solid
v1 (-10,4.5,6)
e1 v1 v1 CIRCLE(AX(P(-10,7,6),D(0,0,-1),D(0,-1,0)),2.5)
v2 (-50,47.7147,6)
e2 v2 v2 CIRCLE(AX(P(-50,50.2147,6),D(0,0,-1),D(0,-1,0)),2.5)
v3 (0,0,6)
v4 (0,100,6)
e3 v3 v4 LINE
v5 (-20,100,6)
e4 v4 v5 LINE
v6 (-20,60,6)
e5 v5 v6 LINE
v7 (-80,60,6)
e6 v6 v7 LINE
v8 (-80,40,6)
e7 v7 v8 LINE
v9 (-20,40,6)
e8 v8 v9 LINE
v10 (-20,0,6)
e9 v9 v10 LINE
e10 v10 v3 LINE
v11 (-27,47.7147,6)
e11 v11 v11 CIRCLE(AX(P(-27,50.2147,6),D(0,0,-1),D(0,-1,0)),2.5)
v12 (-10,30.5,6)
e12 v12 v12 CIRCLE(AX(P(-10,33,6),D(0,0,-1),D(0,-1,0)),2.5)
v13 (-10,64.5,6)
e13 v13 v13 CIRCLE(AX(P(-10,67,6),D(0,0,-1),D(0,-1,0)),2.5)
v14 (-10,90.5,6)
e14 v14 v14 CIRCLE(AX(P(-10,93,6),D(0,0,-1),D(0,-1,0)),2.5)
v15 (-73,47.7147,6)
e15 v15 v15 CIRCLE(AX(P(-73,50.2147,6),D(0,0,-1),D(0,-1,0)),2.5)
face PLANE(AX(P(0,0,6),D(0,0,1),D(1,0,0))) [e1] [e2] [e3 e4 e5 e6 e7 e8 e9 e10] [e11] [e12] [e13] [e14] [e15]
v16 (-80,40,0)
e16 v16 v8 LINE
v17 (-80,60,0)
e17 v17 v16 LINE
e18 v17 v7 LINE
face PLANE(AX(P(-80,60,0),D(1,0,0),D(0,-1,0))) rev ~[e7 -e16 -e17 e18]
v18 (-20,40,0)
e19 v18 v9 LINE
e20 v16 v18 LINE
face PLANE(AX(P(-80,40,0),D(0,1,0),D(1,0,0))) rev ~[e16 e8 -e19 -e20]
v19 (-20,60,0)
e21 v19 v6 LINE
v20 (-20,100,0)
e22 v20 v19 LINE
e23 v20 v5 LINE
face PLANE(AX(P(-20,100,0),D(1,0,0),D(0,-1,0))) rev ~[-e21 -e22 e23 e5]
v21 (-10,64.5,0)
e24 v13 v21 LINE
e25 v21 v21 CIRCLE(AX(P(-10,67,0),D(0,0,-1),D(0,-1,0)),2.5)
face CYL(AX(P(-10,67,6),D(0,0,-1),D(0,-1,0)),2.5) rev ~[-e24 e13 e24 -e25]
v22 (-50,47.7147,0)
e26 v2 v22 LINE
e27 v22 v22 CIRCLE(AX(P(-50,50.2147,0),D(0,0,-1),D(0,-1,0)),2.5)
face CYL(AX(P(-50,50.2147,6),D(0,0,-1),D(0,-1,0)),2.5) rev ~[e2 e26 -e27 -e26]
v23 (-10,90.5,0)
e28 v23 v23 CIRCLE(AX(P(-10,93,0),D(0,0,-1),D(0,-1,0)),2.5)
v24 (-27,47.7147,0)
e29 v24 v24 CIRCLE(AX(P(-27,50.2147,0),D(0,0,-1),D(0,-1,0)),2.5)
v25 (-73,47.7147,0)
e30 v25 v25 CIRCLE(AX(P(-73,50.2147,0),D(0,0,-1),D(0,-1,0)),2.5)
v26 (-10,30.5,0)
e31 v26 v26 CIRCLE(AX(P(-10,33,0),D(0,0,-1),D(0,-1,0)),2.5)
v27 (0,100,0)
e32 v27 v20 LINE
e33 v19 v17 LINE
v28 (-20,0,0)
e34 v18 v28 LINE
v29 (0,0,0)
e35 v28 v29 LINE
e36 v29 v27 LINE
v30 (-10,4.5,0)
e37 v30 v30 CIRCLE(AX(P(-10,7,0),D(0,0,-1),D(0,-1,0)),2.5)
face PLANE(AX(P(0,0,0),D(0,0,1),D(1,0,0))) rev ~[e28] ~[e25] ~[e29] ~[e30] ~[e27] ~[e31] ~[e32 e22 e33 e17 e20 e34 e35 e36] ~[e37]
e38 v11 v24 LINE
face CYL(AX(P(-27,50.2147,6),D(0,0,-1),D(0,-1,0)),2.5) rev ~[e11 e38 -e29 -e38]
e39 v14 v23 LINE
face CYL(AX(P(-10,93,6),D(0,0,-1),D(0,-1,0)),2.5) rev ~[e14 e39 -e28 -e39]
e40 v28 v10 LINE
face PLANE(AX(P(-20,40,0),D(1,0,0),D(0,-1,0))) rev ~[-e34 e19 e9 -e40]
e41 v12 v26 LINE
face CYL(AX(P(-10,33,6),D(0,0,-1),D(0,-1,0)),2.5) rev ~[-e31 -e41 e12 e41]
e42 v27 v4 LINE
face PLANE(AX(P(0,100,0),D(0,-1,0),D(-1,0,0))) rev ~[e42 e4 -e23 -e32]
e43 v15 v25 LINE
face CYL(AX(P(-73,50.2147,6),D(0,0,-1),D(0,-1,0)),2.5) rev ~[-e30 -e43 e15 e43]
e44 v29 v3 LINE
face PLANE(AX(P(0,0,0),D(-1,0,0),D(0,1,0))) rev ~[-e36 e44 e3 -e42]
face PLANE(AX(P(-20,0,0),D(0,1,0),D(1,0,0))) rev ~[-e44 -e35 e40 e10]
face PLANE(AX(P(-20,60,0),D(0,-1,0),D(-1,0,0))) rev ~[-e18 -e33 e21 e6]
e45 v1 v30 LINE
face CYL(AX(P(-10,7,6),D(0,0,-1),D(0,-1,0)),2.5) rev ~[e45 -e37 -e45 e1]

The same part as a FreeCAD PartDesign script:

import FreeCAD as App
import Part
import Sketcher

V = App.Vector

doc = App.newDocument("Part")
params = doc.addObject("Spreadsheet::Sheet", "Params")
for row, (alias, value) in enumerate([
    ("sketch1_width", "20 mm"),
    ("sketch1_width2", "60 mm"),
    ("sketch1_height", "100 mm"),
    ("pad1_length", "6 mm"),
    ("sketch2_diameter", "5 mm"),
    ("hole_diameter", "5 mm"),
    ("hole_depth", "8 mm"),
], start=1):
    params.set(f"A{row}", alias)
    params.set(f"B{row}", "=" + value)
    params.setAlias(f"B{row}", alias)

body = doc.addObject("PartDesign::Body", "Body")

# Sketch on XY plane
sketch1 = body.newObject("Sketcher::SketchObject", "Sketch")
sketch1.AttachmentSupport = (doc.getObject("XY_Plane"), [""])
sketch1.MapMode = "FlatFace"
sketch1.addGeometry([
    Part.LineSegment(V(-20, 0, 0), V(0, 0, 0)),  # 0
    Part.LineSegment(V(0, 0, 0), V(0, 100, 0)),  # 1
    Part.LineSegment(V(0, 100, 0), V(-20, 100, 0)),  # 2
    Part.LineSegment(V(-20, 100, 0), V(-20, 60, 0)),  # 3
    Part.LineSegment(V(-20, 60, 0), V(-80, 60, 0)),  # 4
    Part.LineSegment(V(-80, 60, 0), V(-80, 40, 0)),  # 5
    Part.LineSegment(V(-80, 40, 0), V(-20, 40, 0)),  # 6
    Part.LineSegment(V(-20, 40, 0), V(-20, 0, 0)),  # 7
], False)
sketch1.addConstraint([
    Sketcher.Constraint("Coincident", 0, 2, 1, 1),
    Sketcher.Constraint("Coincident", 1, 2, 2, 1),
    Sketcher.Constraint("Coincident", 2, 2, 3, 1),
    Sketcher.Constraint("Coincident", 3, 2, 4, 1),
    Sketcher.Constraint("Coincident", 4, 2, 5, 1),
    Sketcher.Constraint("Coincident", 5, 2, 6, 1),
    Sketcher.Constraint("Coincident", 6, 2, 7, 1),
    Sketcher.Constraint("Coincident", 7, 2, 0, 1),
    Sketcher.Constraint("Horizontal", 0),
    Sketcher.Constraint("Vertical", 1),
    Sketcher.Constraint("Horizontal", 2),
    Sketcher.Constraint("Vertical", 3),
    Sketcher.Constraint("Horizontal", 4),
    Sketcher.Constraint("Vertical", 5),
    Sketcher.Constraint("Horizontal", 6),
    Sketcher.Constraint("Vertical", 7),
    Sketcher.Constraint("Coincident", 0, 2, -1, 1),
    Sketcher.Constraint("Vertical", 3, 2, 6, 2),
    Sketcher.Constraint("Equal", 2, 5),
    Sketcher.Constraint("Equal", 3, 7),
    Sketcher.Constraint("DistanceX", 0, 1, 0, 2, 20.0),
    Sketcher.Constraint("DistanceX", 4, 2, 4, 1, 60.0),
    Sketcher.Constraint("DistanceY", 1, 1, 1, 2, 100.0),
])
sketch1.setExpression("Constraints[20]", "Params.sketch1_width")
sketch1.setExpression("Constraints[21]", "Params.sketch1_width2")
sketch1.setExpression("Constraints[22]", "Params.sketch1_height")
pad1 = body.newObject("PartDesign::Pad", "Pad")
pad1.Profile = sketch1
pad1.setExpression("Length", "Params.pad1_length")

# Sketch on XY plane
sketch2 = body.newObject("Sketcher::SketchObject", "Sketch001")
sketch2.AttachmentSupport = (doc.getObject("XY_Plane"), [""])
sketch2.MapMode = "FlatFace"
sketch2.AttachmentOffset = App.Placement(V(0, 0, 6), App.Rotation())
sketch2.addGeometry([
    Part.Circle(V(-10, 93, 0), V(0, 0, 1), 2.5),  # 0
    Part.Circle(V(-10, 67, 0), V(0, 0, 1), 2.5),  # 1
    Part.Circle(V(-10, 33, 0), V(0, 0, 1), 2.5),  # 2
    Part.Circle(V(-10, 7, 0), V(0, 0, 1), 2.5),  # 3
    Part.Circle(V(-73, 50.2147, 0), V(0, 0, 1), 2.5),  # 4
    Part.Circle(V(-50, 50.2147, 0), V(0, 0, 1), 2.5),  # 5
    Part.Circle(V(-27, 50.2147, 0), V(0, 0, 1), 2.5),  # 6
], False)
sketch2.addConstraint([
    Sketcher.Constraint("Equal", 0, 1),
    Sketcher.Constraint("Equal", 1, 2),
    Sketcher.Constraint("Equal", 2, 3),
    Sketcher.Constraint("Equal", 3, 4),
    Sketcher.Constraint("Equal", 4, 5),
    Sketcher.Constraint("Equal", 5, 6),
    Sketcher.Constraint("Horizontal", 4, 3, 5, 3),
    Sketcher.Constraint("Horizontal", 5, 3, 6, 3),
    Sketcher.Constraint("Vertical", 0, 3, 1, 3),
    Sketcher.Constraint("Vertical", 1, 3, 2, 3),
    Sketcher.Constraint("Vertical", 2, 3, 3, 3),
    Sketcher.Constraint("Diameter", 0, 5.0),
    Sketcher.Constraint("DistanceX", 0, 3, -1, 1, 10.0),
    Sketcher.Constraint("DistanceY", -1, 1, 0, 3, 93.0),
    Sketcher.Constraint("DistanceY", -1, 1, 1, 3, 67.0),
    Sketcher.Constraint("DistanceY", -1, 1, 2, 3, 33.0),
    Sketcher.Constraint("DistanceY", -1, 1, 3, 3, 7.0),
    Sketcher.Constraint("DistanceX", 4, 3, -1, 1, 73.0),
    Sketcher.Constraint("DistanceX", 5, 3, -1, 1, 50.0),
    Sketcher.Constraint("DistanceX", 6, 3, -1, 1, 27.0),
    Sketcher.Constraint("DistanceY", -1, 1, 4, 3, 50.2147),
])
sketch2.setExpression("Constraints[11]", "Params.sketch2_diameter")
doc.recompute()
hole = body.newObject("PartDesign::Hole", "Hole")
hole.Profile = sketch2
hole.ThreadType = "None"
hole.setExpression("Diameter", "Params.hole_diameter")
hole.DepthType = "Dimension"
hole.setExpression("Depth", "Params.hole_depth")
hole.DrillPoint = "Angled"
hole.DrillPointAngle = 118

doc.recompute()
